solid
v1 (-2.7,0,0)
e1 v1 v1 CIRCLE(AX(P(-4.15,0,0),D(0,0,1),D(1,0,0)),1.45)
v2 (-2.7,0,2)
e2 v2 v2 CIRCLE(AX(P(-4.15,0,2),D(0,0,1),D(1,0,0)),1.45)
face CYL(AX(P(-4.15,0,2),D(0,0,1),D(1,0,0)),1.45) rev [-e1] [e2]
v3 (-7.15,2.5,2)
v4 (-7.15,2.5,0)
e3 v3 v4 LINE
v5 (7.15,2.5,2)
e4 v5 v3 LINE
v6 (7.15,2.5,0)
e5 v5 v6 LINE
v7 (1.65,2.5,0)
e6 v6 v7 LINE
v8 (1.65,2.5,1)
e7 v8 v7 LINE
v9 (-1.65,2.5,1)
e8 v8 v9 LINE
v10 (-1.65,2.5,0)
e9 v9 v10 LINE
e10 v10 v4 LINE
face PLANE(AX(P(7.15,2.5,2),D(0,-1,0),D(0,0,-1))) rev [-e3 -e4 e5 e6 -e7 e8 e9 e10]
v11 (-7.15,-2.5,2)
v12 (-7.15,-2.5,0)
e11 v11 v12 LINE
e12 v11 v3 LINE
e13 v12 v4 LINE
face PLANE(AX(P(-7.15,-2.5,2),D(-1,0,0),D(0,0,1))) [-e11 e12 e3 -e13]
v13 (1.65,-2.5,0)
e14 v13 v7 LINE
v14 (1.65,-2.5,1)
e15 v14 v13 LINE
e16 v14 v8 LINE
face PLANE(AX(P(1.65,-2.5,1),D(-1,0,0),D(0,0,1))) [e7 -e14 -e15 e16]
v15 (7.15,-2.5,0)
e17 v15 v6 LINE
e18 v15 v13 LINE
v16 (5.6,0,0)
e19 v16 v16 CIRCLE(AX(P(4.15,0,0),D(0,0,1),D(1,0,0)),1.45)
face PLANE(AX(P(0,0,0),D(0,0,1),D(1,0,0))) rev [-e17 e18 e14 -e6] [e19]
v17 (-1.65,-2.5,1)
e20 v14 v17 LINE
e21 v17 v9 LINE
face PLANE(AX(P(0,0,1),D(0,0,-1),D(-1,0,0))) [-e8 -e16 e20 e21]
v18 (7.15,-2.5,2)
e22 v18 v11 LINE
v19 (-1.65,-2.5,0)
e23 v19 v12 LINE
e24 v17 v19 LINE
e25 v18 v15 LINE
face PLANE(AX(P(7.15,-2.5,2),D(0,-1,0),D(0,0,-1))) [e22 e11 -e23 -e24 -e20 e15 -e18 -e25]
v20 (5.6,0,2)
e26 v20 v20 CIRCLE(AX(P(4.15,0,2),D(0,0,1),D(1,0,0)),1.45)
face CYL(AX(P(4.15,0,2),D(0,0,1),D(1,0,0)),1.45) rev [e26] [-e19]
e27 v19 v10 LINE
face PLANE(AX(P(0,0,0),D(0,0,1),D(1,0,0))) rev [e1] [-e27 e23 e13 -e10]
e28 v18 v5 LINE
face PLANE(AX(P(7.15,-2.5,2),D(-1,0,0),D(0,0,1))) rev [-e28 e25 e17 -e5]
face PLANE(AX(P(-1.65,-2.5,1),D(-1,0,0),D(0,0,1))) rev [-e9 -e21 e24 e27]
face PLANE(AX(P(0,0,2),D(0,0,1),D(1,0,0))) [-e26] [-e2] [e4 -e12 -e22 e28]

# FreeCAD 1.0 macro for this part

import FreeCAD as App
import Part
import Sketcher


def add_polygon(sketch, points):
    """Adds a closed chain of lines whose ends are joined by coincident constraints."""
    first, n = sketch.GeometryCount, len(points)
    for a, b in zip(points, points[1:] + points[:1]):
        sketch.addGeometry(Part.LineSegment(App.Vector(*a, 0), App.Vector(*b, 0)), False)
    for i in range(n):
        sketch.addConstraint(Sketcher.Constraint("Coincident", first + i, 2, first + (i + 1) % n, 1))

doc = App.newDocument("Part")
body = doc.addObject("PartDesign::Body", "Body")

sketch1 = body.newObject("Sketcher::SketchObject", "Sketch")
sketch1.AttachmentSupport = (doc.getObject("XY_Plane"), [""])
sketch1.MapMode = "FlatFace"
add_polygon(sketch1, [(-7, -2), (7, -2), (7, 2), (-7, 2)])
sketch1.addConstraint([
    Sketcher.Constraint("Horizontal", 0),
    Sketcher.Constraint("Vertical", 1),
    Sketcher.Constraint("Horizontal", 2),
    Sketcher.Constraint("Vertical", 3),
    Sketcher.Constraint("Symmetric", 0, 2, 2, 2, -1, 1),
    Sketcher.Constraint("DistanceY", 1, 1, 1, 2, 5.0),
    Sketcher.Constraint("DistanceX", 0, 1, 0, 2, 14.3),
])
pad1 = body.newObject("PartDesign::Pad", "Pad")
pad1.Profile = sketch1
pad1.Length = 2

sketch2 = body.newObject("Sketcher::SketchObject", "Sketch001")
sketch2.AttachmentSupport = (doc.getObject("XY_Plane"), [""])
sketch2.MapMode = "FlatFace"
add_polygon(sketch2, [(-1.6, -2.5), (1.6, -2.5), (1.6, 2.5), (-1.6, 2.5)])
sketch2.addConstraint([
    Sketcher.Constraint("Horizontal", 0),
    Sketcher.Constraint("Vertical", 1),
    Sketcher.Constraint("Horizontal", 2),
    Sketcher.Constraint("Vertical", 3),
    Sketcher.Constraint("Symmetric", 0, 2, 2, 2, -1, 1),
    Sketcher.Constraint("DistanceY", 1, 1, 1, 2, 5.0),
    Sketcher.Constraint("DistanceX", 0, 1, 0, 2, 3.3),
])
pocket1 = body.newObject("PartDesign::Pocket", "Pocket")
pocket1.Profile = sketch2
pocket1.Length = 1
pocket1.Reversed = True

sketch3 = body.newObject("Sketcher::SketchObject", "Sketch002")
sketch3.AttachmentSupport = (doc.getObject("XY_Plane"), [""])
sketch3.MapMode = "FlatFace"
sketch3.AttachmentOffset = App.Placement(App.Vector(0, 0, 2), App.Rotation())
sketch3.addGeometry([
    Part.Circle(App.Vector(-4.2, 0, 0), App.Vector(0, 0, 1), 1.4),
    Part.Circle(App.Vector(4.2, 0, 0), App.Vector(0, 0, 1), 1.4),
], False)
sketch3.addConstraint([
    Sketcher.Constraint("Equal", 0, 1),
    Sketcher.Constraint("Symmetric", 0, 3, 1, 3, -1, 1),
    Sketcher.Constraint("PointOnObject", 0, 3, -1),
    Sketcher.Constraint("Diameter", 0, 2.9),
    Sketcher.Constraint("DistanceX", 0, 3, 1, 3, 8.3),
])
doc.recompute()
hole = body.newObject("PartDesign::Hole", "Hole")
hole.Profile = sketch3
hole.ThreadType = "None"
hole.Diameter = 2.9
hole.DepthType = "ThroughAll"

doc.recompute()
